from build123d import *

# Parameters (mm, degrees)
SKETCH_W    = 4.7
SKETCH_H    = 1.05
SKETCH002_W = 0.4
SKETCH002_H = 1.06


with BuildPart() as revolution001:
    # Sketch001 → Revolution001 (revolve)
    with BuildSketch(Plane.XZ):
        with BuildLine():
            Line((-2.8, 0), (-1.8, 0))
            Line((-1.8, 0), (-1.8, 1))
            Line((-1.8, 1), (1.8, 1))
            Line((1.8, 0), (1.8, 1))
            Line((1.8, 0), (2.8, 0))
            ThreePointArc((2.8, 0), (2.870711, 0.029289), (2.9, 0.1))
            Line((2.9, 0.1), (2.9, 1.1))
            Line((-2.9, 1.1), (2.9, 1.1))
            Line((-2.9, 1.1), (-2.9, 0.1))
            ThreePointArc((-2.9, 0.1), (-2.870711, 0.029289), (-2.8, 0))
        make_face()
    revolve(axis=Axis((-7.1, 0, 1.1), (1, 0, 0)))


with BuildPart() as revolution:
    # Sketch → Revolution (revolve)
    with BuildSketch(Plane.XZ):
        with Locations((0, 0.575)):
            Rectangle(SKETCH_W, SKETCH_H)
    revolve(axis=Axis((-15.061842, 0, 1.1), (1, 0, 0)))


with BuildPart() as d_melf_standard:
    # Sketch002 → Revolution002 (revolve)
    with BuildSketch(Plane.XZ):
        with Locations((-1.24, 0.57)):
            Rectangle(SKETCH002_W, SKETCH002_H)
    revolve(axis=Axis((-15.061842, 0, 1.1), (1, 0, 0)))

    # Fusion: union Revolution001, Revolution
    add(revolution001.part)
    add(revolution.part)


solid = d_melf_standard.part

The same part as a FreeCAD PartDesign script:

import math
import FreeCAD as App
import Part
import Sketcher
Q = App.Units.Quantity


def add_polygon(sketch, points):
    """Adds a closed chain of lines whose ends are joined by coincident constraints."""
    first, n = sketch.GeometryCount, len(points)
    for a, b in zip(points, points[1:] + points[:1]):
        sketch.addGeometry(Part.LineSegment(App.Vector(*a, 0), App.Vector(*b, 0)), False)
    for i in range(n):
        sketch.addConstraint(Sketcher.Constraint("Coincident", first + i, 2, first + (i + 1) % n, 1))

doc = App.newDocument("Part")
body = doc.addObject("PartDesign::Body", "Body")

sketch1 = body.newObject("Sketcher::SketchObject", "Sketch")
sketch1.AttachmentSupport = (doc.getObject("XZ_Plane"), [""])
sketch1.MapMode = "FlatFace"
sketch1.addGeometry([
    Part.LineSegment(App.Vector(-2.8, 0, 0), App.Vector(-1.8, 0, 0)),
    Part.LineSegment(App.Vector(-1.8, 0, 0), App.Vector(-1.8, 1, 0)),
    Part.LineSegment(App.Vector(-1.8, 1, 0), App.Vector(1.8, 1, 0)),
    Part.LineSegment(App.Vector(1.8, 1, 0), App.Vector(1.8, 0, 0)),
    Part.LineSegment(App.Vector(1.8, 0, 0), App.Vector(2.8, 0, 0)),
    Part.ArcOfCircle(Part.Circle(App.Vector(2.800001, 0.099999, 0), App.Vector(0, 0, 1), 0.099999), math.radians(-90.00063), math.radians(0.00063)),
    Part.LineSegment(App.Vector(2.9, 0.1, 0), App.Vector(2.9, 1.1, 0)),
    Part.LineSegment(App.Vector(2.9, 1.1, 0), App.Vector(-2.9, 1.1, 0)),
    Part.LineSegment(App.Vector(-2.9, 1.1, 0), App.Vector(-2.9, 0.1, 0)),
    Part.ArcOfCircle(Part.Circle(App.Vector(-2.800001, 0.099999, 0), App.Vector(0, 0, 1), 0.099999), math.radians(179.99937), math.radians(270.00063)),
], False)
sketch1.addGeometry(Part.LineSegment(App.Vector(-2.9, 1.1, 0), App.Vector(2.9, 1.1, 0)), True)
sketch1.addConstraint([
    Sketcher.Constraint("Coincident", 0, 2, 1, 1),
    Sketcher.Constraint("Coincident", 1, 2, 2, 1),
    Sketcher.Constraint("Coincident", 2, 2, 3, 1),
    Sketcher.Constraint("Coincident", 3, 2, 4, 1),
    Sketcher.Constraint("Coincident", 4, 2, 5, 1),
    Sketcher.Constraint("Coincident", 5, 2, 6, 1),
    Sketcher.Constraint("Coincident", 6, 2, 7, 1),
    Sketcher.Constraint("Coincident", 7, 2, 8, 1),
    Sketcher.Constraint("Coincident", 8, 2, 9, 1),
    Sketcher.Constraint("Coincident", 9, 2, 0, 1),
    Sketcher.Constraint("Horizontal", 0),
    Sketcher.Constraint("Vertical", 1),
    Sketcher.Constraint("Horizontal", 2),
    Sketcher.Constraint("Vertical", 3),
    Sketcher.Constraint("Horizontal", 4),
    Sketcher.Constraint("Vertical", 6),
    Sketcher.Constraint("Horizontal", 7),
    Sketcher.Constraint("Vertical", 8),
    Sketcher.Constraint("Horizontal", 10),
    Sketcher.Constraint("Coincident", 10, 1, 7, 2),
    Sketcher.Constraint("Equal", 5, 9),
    Sketcher.Constraint("Symmetric", 0, 2, 3, 2, -1, 1),
    Sketcher.Constraint("Symmetric", 5, 3, 9, 3, -2),
    Sketcher.Constraint("Horizontal", 9, 3, 5, 2),
    Sketcher.Constraint("Horizontal", 5, 2, 8, 2),
    Sketcher.Constraint("Vertical", 5, 3, 4, 2),
    Sketcher.Constraint("Vertical", 5, 2, 10, 2),
    Sketcher.Constraint("Equal", 0, 4),
    Sketcher.Constraint("Equal", 4, 1),
    Sketcher.Constraint("Equal", 3, 6),
    Sketcher.Constraint("Radius", 5, Q("0.099999 mm")),
    Sketcher.Constraint("DistanceX", 0, 1, 0, 2, Q("1 mm")),
    Sketcher.Constraint("DistanceX", 2, 1, 2, 2, Q("3.6 mm")),
])
revolution = body.newObject("PartDesign::Revolution", "Revolution")
revolution.Profile = sketch1
revolution.ReferenceAxis = (sketch1, ["Axis0"])
revolution.Angle = 360
body2 = doc.addObject("PartDesign::Body", "Body001")

sketch2 = body2.newObject("Sketcher::SketchObject", "Sketch001")
sketch2.AttachmentSupport = (doc.getObject("XZ_Plane001"), [""])
sketch2.MapMode = "FlatFace"
add_polygon(sketch2, [(-2.35, 1.1), (-2.35, 0.05), (2.35, 0.05), (2.35, 1.1)])
sketch2.addGeometry(Part.LineSegment(App.Vector(-2.35, 1.1, 0), App.Vector(2.35, 1.1, 0)), True)
sketch2.addConstraint([
    Sketcher.Constraint("Vertical", 0),
    Sketcher.Constraint("Horizontal", 1),
    Sketcher.Constraint("Vertical", 2),
    Sketcher.Constraint("Horizontal", 3),
    Sketcher.Constraint("Horizontal", 4),
    Sketcher.Constraint("Coincident", 4, 1, 3, 2),
    Sketcher.Constraint("Vertical", 1, 2, 4, 2),
    Sketcher.Constraint("DistanceX", 1, 1, 1, 2, Q("4.7 mm")),
    Sketcher.Constraint("DistanceY", 0, 2, 0, 1, Q("1.05 mm")),
    Sketcher.Constraint("DistanceY", -1, 1, 2, 2, Q("1.1 mm")),
    Sketcher.Constraint("DistanceX", 0, 2, -1, 1, Q("2.35 mm")),
])
revolution2 = body2.newObject("PartDesign::Revolution", "Revolution001")
revolution2.Profile = sketch2
revolution2.ReferenceAxis = (sketch2, ["Axis0"])
revolution2.Angle = 360
body3 = doc.addObject("PartDesign::Body", "Body002")

sketch3 = body3.newObject("Sketcher::SketchObject", "Sketch002")
sketch3.AttachmentSupport = (doc.getObject("XZ_Plane002"), [""])
sketch3.MapMode = "FlatFace"
add_polygon(sketch3, [(-1.44, 1.1), (-1.44, 0.04), (-1.04, 0.04), (-1.04, 1.1)])
sketch3.addGeometry(Part.LineSegment(App.Vector(-1.44, 1.1, 0), App.Vector(-1.04, 1.1, 0)), True)
sketch3.addConstraint([
    Sketcher.Constraint("Vertical", 0),
    Sketcher.Constraint("Horizontal", 1),
    Sketcher.Constraint("Vertical", 2),
    Sketcher.Constraint("Horizontal", 3),
    Sketcher.Constraint("Horizontal", 4),
    Sketcher.Constraint("Coincident", 4, 1, 3, 2),
    Sketcher.Constraint("Vertical", 1, 2, 4, 2),
    Sketcher.Constraint("DistanceX", 1, 1, 1, 2, Q("0.4 mm")),
    Sketcher.Constraint("DistanceY", 0, 2, 0, 1, Q("1.06 mm")),
    Sketcher.Constraint("DistanceY", -1, 1, 2, 2, Q("1.1 mm")),
    Sketcher.Constraint("DistanceX", 0, 2, -1, 1, Q("1.44 mm")),
])
revolution3 = body3.newObject("PartDesign::Revolution", "Revolution002")
revolution3.Profile = sketch3
revolution3.ReferenceAxis = (sketch3, ["Axis0"])
revolution3.Angle = 360
doc.recompute()

boolean = body3.newObject("PartDesign::Boolean", "Boolean")
boolean.Type = "Fuse"
boolean.addObjects([body])
doc.recompute()

boolean2 = body3.newObject("PartDesign::Boolean", "Boolean001")
boolean2.Type = "Fuse"
boolean2.addObjects([body2])

doc.recompute()
